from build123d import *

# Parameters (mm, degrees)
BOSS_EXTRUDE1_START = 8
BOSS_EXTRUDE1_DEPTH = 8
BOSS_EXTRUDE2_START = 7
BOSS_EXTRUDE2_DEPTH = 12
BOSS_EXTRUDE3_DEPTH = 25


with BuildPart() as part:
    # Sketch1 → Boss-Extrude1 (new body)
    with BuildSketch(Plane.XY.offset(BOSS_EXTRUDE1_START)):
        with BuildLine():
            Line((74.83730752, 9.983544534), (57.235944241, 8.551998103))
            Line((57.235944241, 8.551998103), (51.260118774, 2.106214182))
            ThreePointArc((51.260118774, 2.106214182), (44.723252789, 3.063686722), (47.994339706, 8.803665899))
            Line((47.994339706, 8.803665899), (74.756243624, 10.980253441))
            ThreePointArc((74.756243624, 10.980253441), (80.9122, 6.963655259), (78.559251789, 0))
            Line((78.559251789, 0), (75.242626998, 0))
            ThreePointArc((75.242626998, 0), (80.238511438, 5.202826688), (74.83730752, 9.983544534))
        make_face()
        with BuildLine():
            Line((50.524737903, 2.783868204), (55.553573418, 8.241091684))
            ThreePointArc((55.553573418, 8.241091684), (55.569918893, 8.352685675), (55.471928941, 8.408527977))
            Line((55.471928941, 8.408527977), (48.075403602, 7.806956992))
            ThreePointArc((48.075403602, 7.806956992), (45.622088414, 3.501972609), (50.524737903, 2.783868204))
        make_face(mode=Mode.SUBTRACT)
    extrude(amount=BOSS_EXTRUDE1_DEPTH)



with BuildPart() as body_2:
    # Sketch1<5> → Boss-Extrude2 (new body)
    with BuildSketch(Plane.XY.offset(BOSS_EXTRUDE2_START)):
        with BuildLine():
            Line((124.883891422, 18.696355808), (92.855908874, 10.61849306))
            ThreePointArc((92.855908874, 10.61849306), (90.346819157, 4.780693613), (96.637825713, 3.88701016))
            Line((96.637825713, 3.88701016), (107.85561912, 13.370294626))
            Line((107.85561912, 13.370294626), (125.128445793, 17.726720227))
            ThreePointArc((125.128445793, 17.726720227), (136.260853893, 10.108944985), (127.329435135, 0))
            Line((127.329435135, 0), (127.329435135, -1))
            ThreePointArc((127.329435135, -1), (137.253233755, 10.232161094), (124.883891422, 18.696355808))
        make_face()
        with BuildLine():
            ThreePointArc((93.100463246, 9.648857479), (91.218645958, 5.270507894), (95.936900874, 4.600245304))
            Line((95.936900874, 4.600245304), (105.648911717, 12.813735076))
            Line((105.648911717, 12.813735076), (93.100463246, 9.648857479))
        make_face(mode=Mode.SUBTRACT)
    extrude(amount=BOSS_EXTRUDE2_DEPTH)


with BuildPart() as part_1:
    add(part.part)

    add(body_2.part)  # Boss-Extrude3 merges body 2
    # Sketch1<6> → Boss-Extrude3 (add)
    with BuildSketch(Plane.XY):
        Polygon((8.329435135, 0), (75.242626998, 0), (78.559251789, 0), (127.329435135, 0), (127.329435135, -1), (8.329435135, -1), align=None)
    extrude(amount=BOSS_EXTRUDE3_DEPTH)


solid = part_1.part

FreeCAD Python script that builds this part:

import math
import FreeCAD as App
import Part
import Sketcher


def add_polygon(sketch, points):
    """Adds a closed chain of lines whose ends are joined by coincident constraints."""
    first, n = sketch.GeometryCount, len(points)
    for a, b in zip(points, points[1:] + points[:1]):
        sketch.addGeometry(Part.LineSegment(App.Vector(*a, 0), App.Vector(*b, 0)), False)
    for i in range(n):
        sketch.addConstraint(Sketcher.Constraint("Coincident", first + i, 2, first + (i + 1) % n, 1))

doc = App.newDocument("Part")
body = doc.addObject("PartDesign::Body", "Body")

# Sketch on XY plane
sketch1 = doc.addObject("Sketcher::SketchObject", "Sketch")
body.addObject(sketch1)
sketch1.AttachmentSupport = (doc.XY_Plane, [""])
sketch1.MapMode = "FlatFace"
sketch1.AttachmentOffset = App.Placement(App.Vector(0, 0, 8), App.Rotation())
sketch1.addGeometry(Part.LineSegment(App.Vector(57.235944, 8.551998, 0), App.Vector(74.837308, 9.983545, 0)), False)
sketch1.addGeometry(Part.ArcOfCircle(Part.Circle(App.Vector(75.242627, 5, 0), App.Vector(0, 0, 1), 5), math.radians(-90), math.radians(94.649721)), False)
sketch1.addGeometry(Part.LineSegment(App.Vector(75.242627, 0, 0), App.Vector(78.559252, 0, 0)), False)
sketch1.addGeometry(Part.ArcOfCircle(Part.Circle(App.Vector(75.242627, 5, 0), App.Vector(0, 0, 1), 6), math.radians(-56.44269), math.radians(94.649721)), False)
sketch1.addGeometry(Part.LineSegment(App.Vector(74.756244, 10.980253, 0), App.Vector(47.99434, 8.803666, 0)), False)
sketch1.addGeometry(Part.ArcOfCircle(Part.Circle(App.Vector(48.318595, 4.81683, 0), App.Vector(0, 0, 1), 4), math.radians(94.649721), math.radians(317.339409)), False)
sketch1.addGeometry(Part.LineSegment(App.Vector(51.260119, 2.106214, 0), App.Vector(57.235944, 8.551998, 0)), False)
sketch1.addGeometry(Part.ArcOfCircle(Part.Circle(App.Vector(48.318595, 4.81683, 0), App.Vector(0, 0, 1), 3), math.radians(94.649721), math.radians(317.339409)), False)
sketch1.addGeometry(Part.LineSegment(App.Vector(48.075404, 7.806957, 0), App.Vector(55.471929, 8.408528, 0)), False)
sketch1.addGeometry(Part.ArcOfCircle(Part.Circle(App.Vector(55.480035, 8.308857, 0), App.Vector(0, 0, 1), 0.1), math.radians(-42.660591), math.radians(94.649721)), False)
sketch1.addGeometry(Part.LineSegment(App.Vector(55.553573, 8.241092, 0), App.Vector(50.524738, 2.783868, 0)), False)
sketch1.addConstraint(Sketcher.Constraint("Tangent", 0, 2, 1, 2))
sketch1.addConstraint(Sketcher.Constraint("Tangent", 1, 1, 2, 1))
sketch1.addConstraint(Sketcher.Constraint("Coincident", 2, 2, 3, 1))
sketch1.addConstraint(Sketcher.Constraint("Tangent", 3, 2, 4, 1))
sketch1.addConstraint(Sketcher.Constraint("Tangent", 4, 2, 5, 1))
sketch1.addConstraint(Sketcher.Constraint("Coincident", 5, 2, 6, 1))
sketch1.addConstraint(Sketcher.Constraint("Coincident", 6, 2, 0, 1))
sketch1.addConstraint(Sketcher.Constraint("Tangent", 7, 1, 8, 1))
sketch1.addConstraint(Sketcher.Constraint("Tangent", 8, 2, 9, 2))
sketch1.addConstraint(Sketcher.Constraint("Tangent", 9, 1, 10, 1))
sketch1.addConstraint(Sketcher.Constraint("Tangent", 10, 2, 7, 2))
sketch1.addConstraint(Sketcher.Constraint("Horizontal", 2))
sketch1.addConstraint(Sketcher.Constraint("Coincident", 3, 3, 1, 3))
sketch1.addConstraint(Sketcher.Constraint("Coincident", 7, 3, 5, 3))
sketch1.addConstraint(Sketcher.Constraint("PointOnObject", 1, 1, -1))
sketch1.addConstraint(Sketcher.Constraint("Parallel", 0, 4))
sketch1.addConstraint(Sketcher.Constraint("Parallel", 4, 8))
sketch1.addConstraint(Sketcher.Constraint("Radius", 1, 5.0))
sketch1.addConstraint(Sketcher.Constraint("Radius", 3, 6.0))
sketch1.addConstraint(Sketcher.Constraint("Radius", 5, 4.0))
sketch1.addConstraint(Sketcher.Constraint("Radius", 7, 3.0))
sketch1.addConstraint(Sketcher.Constraint("Radius", 9, 0.1))
sketch1.addConstraint(Sketcher.Constraint("DistanceY", -1, 1, 6, 2, 8.551998))
sketch1.addConstraint(Sketcher.Constraint("DistanceY", 7, 1, 9, 3, 0.5019))
sketch1.addConstraint(Sketcher.Constraint("DistanceX", 4, 2, 10, 2, 2.530398))
sketch1.addConstraint(Sketcher.Constraint("Distance", 4, 26.850271))
sketch1.addConstraint(Sketcher.Constraint("Distance", 6, 8.789688))
sketch1.addConstraint(Sketcher.Constraint("DistanceX", -1, 1, 2, 2, 78.559252))
pad1 = doc.addObject("PartDesign::Pad", "Pad")
body.addObject(pad1)
pad1.Profile = sketch1
pad1.Length = 8
body2 = doc.addObject("PartDesign::Body", "Body001")

# Sketch on XY plane
sketch2 = doc.addObject("Sketcher::SketchObject", "Sketch001")
body2.addObject(sketch2)
sketch2.AttachmentSupport = (doc.getObject("XY_Plane001"), [""])
sketch2.MapMode = "FlatFace"
sketch2.AttachmentOffset = App.Placement(App.Vector(0, 0, 7), App.Rotation())
sketch2.addGeometry(Part.LineSegment(App.Vector(124.883891, 18.696356, 0), App.Vector(92.855909, 10.618493, 0)), False)
sketch2.addGeometry(Part.ArcOfCircle(Part.Circle(App.Vector(93.834126, 6.739951, 0), App.Vector(0, 0, 1), 4), math.radians(104.1555), math.radians(314.501251)), False)
sketch2.addGeometry(Part.LineSegment(App.Vector(96.637826, 3.88701, 0), App.Vector(107.855619, 13.370295, 0)), False)
sketch2.addGeometry(Part.LineSegment(App.Vector(107.855619, 13.370295, 0), App.Vector(125.128446, 17.72672, 0)), False)
sketch2.addGeometry(Part.ArcOfCircle(Part.Circle(App.Vector(127.329435, 9, 0), App.Vector(0, 0, 1), 9), math.radians(-90), math.radians(104.1555)), False)
sketch2.addGeometry(Part.LineSegment(App.Vector(127.329435, 0, 0), App.Vector(127.329435, -1, 0)), False)
sketch2.addGeometry(Part.ArcOfCircle(Part.Circle(App.Vector(127.329435, 9, 0), App.Vector(0, 0, 1), 10), math.radians(-90), math.radians(104.1555)), False)
sketch2.addGeometry(Part.ArcOfCircle(Part.Circle(App.Vector(93.834126, 6.739951, 0), App.Vector(0, 0, 1), 3), math.radians(104.1555), math.radians(314.501251)), False)
sketch2.addGeometry(Part.LineSegment(App.Vector(93.100463, 9.648857, 0), App.Vector(105.648912, 12.813735, 0)), False)
sketch2.addGeometry(Part.LineSegment(App.Vector(105.648912, 12.813735, 0), App.Vector(95.936901, 4.600245, 0)), False)
sketch2.addConstraint(Sketcher.Constraint("Tangent", 0, 2, 1, 1))
sketch2.addConstraint(Sketcher.Constraint("Coincident", 1, 2, 2, 1))
sketch2.addConstraint(Sketcher.Constraint("Coincident", 2, 2, 3, 1))
sketch2.addConstraint(Sketcher.Constraint("Tangent", 3, 2, 4, 2))
sketch2.addConstraint(Sketcher.Constraint("Coincident", 4, 1, 5, 1))
sketch2.addConstraint(Sketcher.Constraint("Coincident", 5, 2, 6, 1))
sketch2.addConstraint(Sketcher.Constraint("Tangent", 6, 2, 0, 1))
sketch2.addConstraint(Sketcher.Constraint("Tangent", 7, 1, 8, 1))
sketch2.addConstraint(Sketcher.Constraint("Coincident", 8, 2, 9, 1))
sketch2.addConstraint(Sketcher.Constraint("Coincident", 9, 2, 7, 2))
sketch2.addConstraint(Sketcher.Constraint("Vertical", 5))
sketch2.addConstraint(Sketcher.Constraint("Coincident", 6, 3, 4, 3))
sketch2.addConstraint(Sketcher.Constraint("Coincident", 7, 3, 1, 3))
sketch2.addConstraint(Sketcher.Constraint("PointOnObject", 4, 1, -1))
sketch2.addConstraint(Sketcher.Constraint("Parallel", 0, 3))
sketch2.addConstraint(Sketcher.Constraint("Parallel", 3, 8))
sketch2.addConstraint(Sketcher.Constraint("Vertical", 6, 3, 4, 1))
sketch2.addConstraint(Sketcher.Constraint("Radius", 1, 4.0))
sketch2.addConstraint(Sketcher.Constraint("Radius", 4, 9.0))
sketch2.addConstraint(Sketcher.Constraint("Radius", 6, 10.0))
sketch2.addConstraint(Sketcher.Constraint("Radius", 7, 3.0))
sketch2.addConstraint(Sketcher.Constraint("DistanceX", -1, 1, 9, 2, 95.936901))
sketch2.addConstraint(Sketcher.Constraint("DistanceX", 1, 3, 1, 2, 2.803699))
sketch2.addConstraint(Sketcher.Constraint("DistanceY", 0, 2, 2, 2, 2.751802))
sketch2.addConstraint(Sketcher.Constraint("Distance", 0, 33.030948))
sketch2.addConstraint(Sketcher.Constraint("Distance", 3, 17.81373))
sketch2.addConstraint(Sketcher.Constraint("DistanceX", -1, 1, 0, 2, 92.855909))
sketch2.addConstraint(Sketcher.Constraint("DistanceX", -1, 1, 8, 2, 105.648912))
pad2 = doc.addObject("PartDesign::Pad", "Pad001")
body2.addObject(pad2)
pad2.Profile = sketch2
pad2.Length = 12
body.AllowCompound = True
doc.recompute()

boolean = doc.addObject("PartDesign::Boolean", "Boolean")
body.addObject(boolean)
boolean.Type = "Fuse"
boolean.addObjects([body2])

# Sketch on XY plane
sketch3 = doc.addObject("Sketcher::SketchObject", "Sketch002")
body.addObject(sketch3)
sketch3.AttachmentSupport = (doc.XY_Plane, [""])
sketch3.MapMode = "FlatFace"
add_polygon(sketch3, [(127.329435, 0), (8.329435, 0), (8.329435, -1), (127.329435, -1)])  # lines 0-3
sketch3.addConstraint(Sketcher.Constraint("Horizontal", 0))
sketch3.addConstraint(Sketcher.Constraint("Vertical", 1))
sketch3.addConstraint(Sketcher.Constraint("Horizontal", 2))
sketch3.addConstraint(Sketcher.Constraint("Vertical", 3))
sketch3.addConstraint(Sketcher.Constraint("PointOnObject", 0, 2, -1))
sketch3.addConstraint(Sketcher.Constraint("DistanceX", 0, 2, 0, 1, 119.0))
sketch3.addConstraint(Sketcher.Constraint("DistanceY", 1, 2, 1, 1, 1.0))
sketch3.addConstraint(Sketcher.Constraint("DistanceX", -1, 1, 0, 2, 8.329435))
pad3 = doc.addObject("PartDesign::Pad", "Pad002")
body.addObject(pad3)
pad3.Profile = sketch3
pad3.Length = 25

doc.recompute()
